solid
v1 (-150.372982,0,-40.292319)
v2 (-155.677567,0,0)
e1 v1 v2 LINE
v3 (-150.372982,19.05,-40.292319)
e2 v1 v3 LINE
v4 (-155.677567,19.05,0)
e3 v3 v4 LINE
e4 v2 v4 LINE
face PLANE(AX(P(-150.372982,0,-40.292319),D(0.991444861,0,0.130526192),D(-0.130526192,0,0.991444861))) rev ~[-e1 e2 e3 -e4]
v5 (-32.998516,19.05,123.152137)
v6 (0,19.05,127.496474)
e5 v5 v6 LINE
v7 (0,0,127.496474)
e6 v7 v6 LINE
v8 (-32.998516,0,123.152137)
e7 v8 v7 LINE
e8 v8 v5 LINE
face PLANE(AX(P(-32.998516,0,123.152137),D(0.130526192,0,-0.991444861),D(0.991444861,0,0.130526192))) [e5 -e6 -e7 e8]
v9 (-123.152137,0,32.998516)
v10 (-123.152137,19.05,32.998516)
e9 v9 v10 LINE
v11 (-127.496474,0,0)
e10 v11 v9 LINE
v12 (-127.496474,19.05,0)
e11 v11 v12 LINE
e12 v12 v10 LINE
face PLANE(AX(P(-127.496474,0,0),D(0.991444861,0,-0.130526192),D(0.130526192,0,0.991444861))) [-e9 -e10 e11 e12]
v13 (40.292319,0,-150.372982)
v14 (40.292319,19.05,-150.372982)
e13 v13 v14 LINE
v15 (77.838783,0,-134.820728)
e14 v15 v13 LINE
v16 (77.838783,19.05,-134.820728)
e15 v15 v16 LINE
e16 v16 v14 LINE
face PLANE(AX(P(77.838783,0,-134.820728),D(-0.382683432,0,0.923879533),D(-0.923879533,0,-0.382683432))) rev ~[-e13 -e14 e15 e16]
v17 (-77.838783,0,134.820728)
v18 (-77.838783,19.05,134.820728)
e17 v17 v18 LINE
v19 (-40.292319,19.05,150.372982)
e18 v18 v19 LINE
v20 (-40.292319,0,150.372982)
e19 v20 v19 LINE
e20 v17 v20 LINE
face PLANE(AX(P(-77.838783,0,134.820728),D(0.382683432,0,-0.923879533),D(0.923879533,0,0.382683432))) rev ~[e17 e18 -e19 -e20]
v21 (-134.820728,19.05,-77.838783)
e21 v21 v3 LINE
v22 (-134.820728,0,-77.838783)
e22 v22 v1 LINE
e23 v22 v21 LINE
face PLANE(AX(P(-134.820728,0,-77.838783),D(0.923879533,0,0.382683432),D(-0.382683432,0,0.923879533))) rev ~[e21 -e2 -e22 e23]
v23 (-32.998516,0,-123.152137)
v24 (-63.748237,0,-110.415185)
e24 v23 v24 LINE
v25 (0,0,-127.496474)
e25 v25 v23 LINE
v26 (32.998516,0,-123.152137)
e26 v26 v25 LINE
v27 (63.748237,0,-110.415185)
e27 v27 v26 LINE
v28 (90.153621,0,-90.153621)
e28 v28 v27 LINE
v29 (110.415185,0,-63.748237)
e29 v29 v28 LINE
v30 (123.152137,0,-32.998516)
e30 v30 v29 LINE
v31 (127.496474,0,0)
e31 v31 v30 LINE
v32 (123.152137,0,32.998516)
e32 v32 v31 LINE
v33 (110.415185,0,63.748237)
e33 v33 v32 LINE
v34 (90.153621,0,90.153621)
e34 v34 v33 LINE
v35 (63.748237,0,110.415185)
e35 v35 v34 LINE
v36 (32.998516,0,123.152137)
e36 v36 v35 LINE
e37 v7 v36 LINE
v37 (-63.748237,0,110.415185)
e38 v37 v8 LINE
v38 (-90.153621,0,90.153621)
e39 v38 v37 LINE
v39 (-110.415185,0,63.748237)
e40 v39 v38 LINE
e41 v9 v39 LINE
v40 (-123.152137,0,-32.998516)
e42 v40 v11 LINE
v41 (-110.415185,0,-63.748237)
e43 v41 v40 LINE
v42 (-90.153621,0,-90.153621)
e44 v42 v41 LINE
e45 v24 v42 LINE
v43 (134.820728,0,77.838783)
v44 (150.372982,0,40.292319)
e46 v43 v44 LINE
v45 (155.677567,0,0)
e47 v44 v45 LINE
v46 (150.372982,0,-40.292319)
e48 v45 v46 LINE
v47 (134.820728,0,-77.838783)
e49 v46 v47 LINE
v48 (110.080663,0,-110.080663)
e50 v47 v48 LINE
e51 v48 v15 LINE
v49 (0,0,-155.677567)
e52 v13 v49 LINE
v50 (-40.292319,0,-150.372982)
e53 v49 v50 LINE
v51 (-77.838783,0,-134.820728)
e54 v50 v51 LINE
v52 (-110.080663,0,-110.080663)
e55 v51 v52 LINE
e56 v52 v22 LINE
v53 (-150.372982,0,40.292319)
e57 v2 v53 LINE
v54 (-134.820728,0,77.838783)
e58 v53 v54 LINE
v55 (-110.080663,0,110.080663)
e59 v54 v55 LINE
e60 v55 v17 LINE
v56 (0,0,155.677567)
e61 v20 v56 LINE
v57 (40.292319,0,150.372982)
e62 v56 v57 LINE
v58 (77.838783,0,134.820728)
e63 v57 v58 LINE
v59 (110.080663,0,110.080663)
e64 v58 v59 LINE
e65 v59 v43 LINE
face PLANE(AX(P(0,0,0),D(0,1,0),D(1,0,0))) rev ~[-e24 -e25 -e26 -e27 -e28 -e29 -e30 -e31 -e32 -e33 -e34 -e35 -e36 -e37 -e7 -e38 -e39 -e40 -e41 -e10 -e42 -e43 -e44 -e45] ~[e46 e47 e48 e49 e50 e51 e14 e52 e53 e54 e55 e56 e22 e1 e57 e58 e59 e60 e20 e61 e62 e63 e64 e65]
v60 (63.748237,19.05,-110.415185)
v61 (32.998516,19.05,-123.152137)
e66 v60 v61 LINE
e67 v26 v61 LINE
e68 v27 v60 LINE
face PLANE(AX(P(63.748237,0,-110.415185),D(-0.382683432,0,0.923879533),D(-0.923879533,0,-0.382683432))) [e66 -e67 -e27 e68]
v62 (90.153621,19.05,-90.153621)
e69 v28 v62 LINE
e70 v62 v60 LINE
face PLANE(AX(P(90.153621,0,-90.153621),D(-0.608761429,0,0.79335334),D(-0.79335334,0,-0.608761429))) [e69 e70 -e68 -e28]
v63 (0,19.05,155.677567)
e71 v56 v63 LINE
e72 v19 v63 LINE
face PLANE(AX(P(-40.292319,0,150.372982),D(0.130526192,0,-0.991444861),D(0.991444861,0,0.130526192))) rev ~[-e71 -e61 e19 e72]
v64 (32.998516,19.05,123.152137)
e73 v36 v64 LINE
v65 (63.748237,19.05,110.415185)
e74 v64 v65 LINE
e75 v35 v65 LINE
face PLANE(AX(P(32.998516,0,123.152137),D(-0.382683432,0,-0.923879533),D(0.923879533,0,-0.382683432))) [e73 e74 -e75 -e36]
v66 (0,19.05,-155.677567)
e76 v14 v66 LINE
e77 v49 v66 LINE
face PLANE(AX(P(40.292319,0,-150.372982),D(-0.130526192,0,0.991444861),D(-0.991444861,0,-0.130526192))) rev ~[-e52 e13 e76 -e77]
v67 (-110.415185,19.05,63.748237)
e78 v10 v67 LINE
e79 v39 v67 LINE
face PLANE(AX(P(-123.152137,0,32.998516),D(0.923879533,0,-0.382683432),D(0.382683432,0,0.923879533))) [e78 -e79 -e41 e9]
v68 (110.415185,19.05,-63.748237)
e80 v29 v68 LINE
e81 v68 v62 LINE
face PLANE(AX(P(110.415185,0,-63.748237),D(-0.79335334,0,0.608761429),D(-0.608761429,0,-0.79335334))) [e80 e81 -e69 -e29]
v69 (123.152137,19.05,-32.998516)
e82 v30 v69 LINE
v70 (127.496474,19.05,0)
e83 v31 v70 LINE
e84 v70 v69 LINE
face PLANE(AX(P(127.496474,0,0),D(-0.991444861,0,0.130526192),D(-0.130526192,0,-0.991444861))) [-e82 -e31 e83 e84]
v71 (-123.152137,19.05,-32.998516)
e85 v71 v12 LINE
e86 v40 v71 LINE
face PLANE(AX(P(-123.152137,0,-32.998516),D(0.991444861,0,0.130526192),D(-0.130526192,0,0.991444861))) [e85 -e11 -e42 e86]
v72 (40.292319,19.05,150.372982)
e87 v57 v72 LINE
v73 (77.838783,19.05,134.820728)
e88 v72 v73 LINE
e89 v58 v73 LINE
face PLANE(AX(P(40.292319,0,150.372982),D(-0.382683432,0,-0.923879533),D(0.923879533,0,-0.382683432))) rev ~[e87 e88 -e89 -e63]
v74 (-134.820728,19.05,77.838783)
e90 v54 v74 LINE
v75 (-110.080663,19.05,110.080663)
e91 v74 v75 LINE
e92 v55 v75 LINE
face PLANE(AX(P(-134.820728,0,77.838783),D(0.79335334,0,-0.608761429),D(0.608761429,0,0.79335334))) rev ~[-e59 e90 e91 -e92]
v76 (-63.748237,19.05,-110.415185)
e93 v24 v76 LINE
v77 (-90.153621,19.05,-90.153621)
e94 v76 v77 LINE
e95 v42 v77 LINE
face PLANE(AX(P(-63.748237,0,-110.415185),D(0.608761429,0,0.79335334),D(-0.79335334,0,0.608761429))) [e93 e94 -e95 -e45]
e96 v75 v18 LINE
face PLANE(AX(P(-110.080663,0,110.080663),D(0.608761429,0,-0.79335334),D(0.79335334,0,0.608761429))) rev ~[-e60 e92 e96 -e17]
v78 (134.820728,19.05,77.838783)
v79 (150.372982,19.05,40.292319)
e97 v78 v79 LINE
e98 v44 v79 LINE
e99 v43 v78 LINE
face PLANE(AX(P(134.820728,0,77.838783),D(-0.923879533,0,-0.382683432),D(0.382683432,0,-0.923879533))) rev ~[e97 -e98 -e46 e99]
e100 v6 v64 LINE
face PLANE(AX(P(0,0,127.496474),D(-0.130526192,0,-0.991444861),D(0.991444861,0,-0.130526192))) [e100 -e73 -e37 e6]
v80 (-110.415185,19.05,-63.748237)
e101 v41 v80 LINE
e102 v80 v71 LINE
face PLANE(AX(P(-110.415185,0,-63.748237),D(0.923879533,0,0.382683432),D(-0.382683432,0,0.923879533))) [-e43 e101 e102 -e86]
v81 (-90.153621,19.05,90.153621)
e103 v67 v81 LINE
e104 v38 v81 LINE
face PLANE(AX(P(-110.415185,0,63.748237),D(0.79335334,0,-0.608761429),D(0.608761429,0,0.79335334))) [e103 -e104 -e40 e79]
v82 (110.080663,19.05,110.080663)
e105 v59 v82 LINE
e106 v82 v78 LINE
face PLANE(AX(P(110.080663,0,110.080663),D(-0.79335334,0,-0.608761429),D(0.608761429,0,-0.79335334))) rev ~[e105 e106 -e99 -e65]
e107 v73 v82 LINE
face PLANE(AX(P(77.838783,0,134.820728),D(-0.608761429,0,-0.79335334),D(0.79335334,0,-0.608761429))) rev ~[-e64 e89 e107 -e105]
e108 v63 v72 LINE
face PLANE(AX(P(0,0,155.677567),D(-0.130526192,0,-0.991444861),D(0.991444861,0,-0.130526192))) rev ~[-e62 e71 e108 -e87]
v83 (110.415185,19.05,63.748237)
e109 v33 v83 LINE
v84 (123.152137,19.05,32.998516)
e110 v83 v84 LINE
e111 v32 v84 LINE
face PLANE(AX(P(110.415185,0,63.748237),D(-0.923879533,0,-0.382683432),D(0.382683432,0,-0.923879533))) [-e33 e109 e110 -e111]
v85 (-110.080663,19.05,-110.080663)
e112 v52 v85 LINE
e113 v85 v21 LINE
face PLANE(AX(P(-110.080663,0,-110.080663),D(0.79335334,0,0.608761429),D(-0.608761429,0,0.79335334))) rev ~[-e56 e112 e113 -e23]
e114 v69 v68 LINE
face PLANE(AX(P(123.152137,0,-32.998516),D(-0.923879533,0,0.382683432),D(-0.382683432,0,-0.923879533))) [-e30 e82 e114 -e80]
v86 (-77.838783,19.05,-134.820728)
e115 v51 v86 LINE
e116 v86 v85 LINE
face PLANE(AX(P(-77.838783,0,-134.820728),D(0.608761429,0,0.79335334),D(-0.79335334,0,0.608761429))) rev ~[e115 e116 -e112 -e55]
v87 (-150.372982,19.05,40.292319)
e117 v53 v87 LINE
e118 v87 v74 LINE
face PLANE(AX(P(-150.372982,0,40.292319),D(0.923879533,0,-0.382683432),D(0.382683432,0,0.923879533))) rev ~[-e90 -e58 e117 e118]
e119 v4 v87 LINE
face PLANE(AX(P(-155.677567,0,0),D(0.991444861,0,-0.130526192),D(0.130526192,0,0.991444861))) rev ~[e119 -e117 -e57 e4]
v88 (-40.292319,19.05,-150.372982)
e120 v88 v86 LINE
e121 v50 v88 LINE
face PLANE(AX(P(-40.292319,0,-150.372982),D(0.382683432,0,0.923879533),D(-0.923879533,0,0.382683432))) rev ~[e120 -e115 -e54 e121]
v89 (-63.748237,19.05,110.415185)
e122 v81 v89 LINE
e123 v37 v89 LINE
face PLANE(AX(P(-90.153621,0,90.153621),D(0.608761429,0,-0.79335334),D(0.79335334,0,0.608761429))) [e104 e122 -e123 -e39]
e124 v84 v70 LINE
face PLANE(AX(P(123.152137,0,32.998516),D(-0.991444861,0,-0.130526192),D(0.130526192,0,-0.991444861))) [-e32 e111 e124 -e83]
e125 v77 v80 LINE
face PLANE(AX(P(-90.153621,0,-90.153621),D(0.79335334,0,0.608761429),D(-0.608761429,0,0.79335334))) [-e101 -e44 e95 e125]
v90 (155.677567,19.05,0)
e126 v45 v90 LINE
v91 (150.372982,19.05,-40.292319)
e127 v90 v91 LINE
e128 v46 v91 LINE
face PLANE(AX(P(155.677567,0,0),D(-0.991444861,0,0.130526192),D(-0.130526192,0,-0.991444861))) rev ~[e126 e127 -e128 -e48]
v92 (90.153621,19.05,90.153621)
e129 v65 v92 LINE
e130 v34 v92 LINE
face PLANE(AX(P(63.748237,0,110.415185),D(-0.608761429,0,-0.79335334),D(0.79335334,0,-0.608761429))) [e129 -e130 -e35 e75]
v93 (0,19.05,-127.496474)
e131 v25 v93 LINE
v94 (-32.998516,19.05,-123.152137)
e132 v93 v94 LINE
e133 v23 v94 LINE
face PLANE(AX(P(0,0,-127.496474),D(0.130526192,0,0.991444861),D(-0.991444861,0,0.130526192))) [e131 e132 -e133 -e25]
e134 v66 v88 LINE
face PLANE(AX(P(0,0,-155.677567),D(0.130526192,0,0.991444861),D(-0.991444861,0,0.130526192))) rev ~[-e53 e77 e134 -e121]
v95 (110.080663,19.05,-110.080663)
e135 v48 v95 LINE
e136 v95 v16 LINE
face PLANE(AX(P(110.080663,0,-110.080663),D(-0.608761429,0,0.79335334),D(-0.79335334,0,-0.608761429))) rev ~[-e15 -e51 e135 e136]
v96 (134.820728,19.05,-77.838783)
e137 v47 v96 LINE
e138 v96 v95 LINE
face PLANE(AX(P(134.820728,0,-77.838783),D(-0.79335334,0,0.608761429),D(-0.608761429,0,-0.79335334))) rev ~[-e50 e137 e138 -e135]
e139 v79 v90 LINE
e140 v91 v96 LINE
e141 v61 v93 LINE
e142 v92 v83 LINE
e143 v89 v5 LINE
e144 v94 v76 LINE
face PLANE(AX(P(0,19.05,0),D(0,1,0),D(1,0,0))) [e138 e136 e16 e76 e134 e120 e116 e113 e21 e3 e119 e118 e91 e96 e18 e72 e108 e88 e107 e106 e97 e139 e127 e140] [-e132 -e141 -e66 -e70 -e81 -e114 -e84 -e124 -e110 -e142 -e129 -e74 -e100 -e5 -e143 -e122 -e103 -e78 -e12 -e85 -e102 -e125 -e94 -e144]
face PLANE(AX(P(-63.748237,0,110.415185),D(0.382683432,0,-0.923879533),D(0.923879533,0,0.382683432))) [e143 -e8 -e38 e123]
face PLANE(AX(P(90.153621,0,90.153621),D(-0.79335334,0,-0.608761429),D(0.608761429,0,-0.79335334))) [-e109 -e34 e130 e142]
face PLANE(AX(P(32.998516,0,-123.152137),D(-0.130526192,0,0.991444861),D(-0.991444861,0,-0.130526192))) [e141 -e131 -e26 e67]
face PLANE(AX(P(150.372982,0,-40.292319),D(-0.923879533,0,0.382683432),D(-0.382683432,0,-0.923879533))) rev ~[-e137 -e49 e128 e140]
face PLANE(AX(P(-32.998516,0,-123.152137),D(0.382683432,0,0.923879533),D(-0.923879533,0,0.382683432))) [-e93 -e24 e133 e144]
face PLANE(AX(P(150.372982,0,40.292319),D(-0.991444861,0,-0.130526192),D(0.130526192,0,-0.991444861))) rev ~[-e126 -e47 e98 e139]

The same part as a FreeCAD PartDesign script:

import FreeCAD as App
import Part
import Sketcher
Q = App.Units.Quantity


def add_polygon(sketch, points):
    """Adds a closed chain of lines whose ends are joined by coincident constraints."""
    first, n = sketch.GeometryCount, len(points)
    for a, b in zip(points, points[1:] + points[:1]):
        sketch.addGeometry(Part.LineSegment(App.Vector(*a, 0), App.Vector(*b, 0)), False)
    for i in range(n):
        sketch.addConstraint(Sketcher.Constraint("Coincident", first + i, 2, first + (i + 1) % n, 1))

doc = App.newDocument("Part")
body = doc.addObject("PartDesign::Body", "Body")

sketch1 = body.newObject("Sketcher::SketchObject", "Sketch")
sketch1.AttachmentSupport = (doc.getObject("XZ_Plane"), [""])
sketch1.MapMode = "FlatFace"
add_polygon(sketch1, [(-156, 0), (-150, 40), (-135, 78), (-110, 110), (-78, 135), (-40, 150), (0, 156), (40, 150), (78, 135), (110, 110), (135, 78), (150, 40), (156, 0), (150, -40), (135, -78), (110, -110), (78, -135), (40, -150), (0, -156), (-40, -150), (-78, -135), (-110, -110), (-135, -78), (-150, -40)])
add_polygon(sketch1, [(-123, 33), (-127, 0), (-123, -33), (-110, -64), (-90, -90), (-64, -110), (-33, -123), (0, -127), (33, -123), (64, -110), (90, -90), (110, -64), (123, -33), (127, 0), (123, 33), (110, 64), (90, 90), (64, 110), (33, 123), (0, 127), (-33, 123), (-64, 110), (-90, 90), (-110, 64)])
sketch1.addConstraint([
    Sketcher.Constraint("Symmetric", 0, 2, 12, 2, -1, 1),
    Sketcher.Constraint("Symmetric", 1, 2, 13, 2, -1, 1),
    Sketcher.Constraint("Symmetric", 2, 2, 14, 2, -1, 1),
    Sketcher.Constraint("Symmetric", 3, 2, 15, 2, -1, 1),
    Sketcher.Constraint("Symmetric", 4, 2, 16, 2, -1, 1),
    Sketcher.Constraint("Symmetric", 5, 2, 17, 2, -1, 1),
    Sketcher.Constraint("Symmetric", 6, 2, 18, 2, -1, 1),
    Sketcher.Constraint("Symmetric", 7, 2, 19, 2, -1, 1),
    Sketcher.Constraint("Symmetric", 8, 2, 20, 2, -1, 1),
    Sketcher.Constraint("Symmetric", 9, 2, 21, 2, -1, 1),
    Sketcher.Constraint("Symmetric", 10, 2, 22, 2, -1, 1),
    Sketcher.Constraint("Symmetric", 11, 2, 23, 2, -1, 1),
    Sketcher.Constraint("Symmetric", 24, 2, 36, 2, -1, 1),
    Sketcher.Constraint("Symmetric", 25, 2, 37, 2, -1, 1),
    Sketcher.Constraint("Symmetric", 26, 2, 38, 2, -1, 1),
    Sketcher.Constraint("Symmetric", 27, 2, 39, 2, -1, 1),
    Sketcher.Constraint("Symmetric", 28, 2, 40, 2, -1, 1),
    Sketcher.Constraint("Symmetric", 29, 2, 41, 2, -1, 1),
    Sketcher.Constraint("Symmetric", 30, 2, 42, 2, -1, 1),
    Sketcher.Constraint("Symmetric", 31, 2, 43, 2, -1, 1),
    Sketcher.Constraint("Symmetric", 32, 2, 44, 2, -1, 1),
    Sketcher.Constraint("Symmetric", 33, 2, 45, 2, -1, 1),
    Sketcher.Constraint("Symmetric", 34, 2, 46, 2, -1, 1),
    Sketcher.Constraint("Symmetric", 35, 2, 47, 2, -1, 1),
    Sketcher.Constraint("Symmetric", 4, 2, 6, 2, -2),
    Sketcher.Constraint("Symmetric", 3, 2, 7, 2, -2),
    Sketcher.Constraint("Symmetric", 2, 2, 8, 2, -2),
    Sketcher.Constraint("Symmetric", 1, 2, 9, 2, -2),
    Sketcher.Constraint("Symmetric", 0, 2, 10, 2, -2),
    Sketcher.Constraint("Symmetric", 29, 2, 31, 2, -2),
    Sketcher.Constraint("Symmetric", 28, 2, 32, 2, -2),
    Sketcher.Constraint("Symmetric", 27, 2, 33, 2, -2),
    Sketcher.Constraint("Symmetric", 26, 2, 34, 2, -2),
    Sketcher.Constraint("Symmetric", 25, 2, 35, 2, -2),
    Sketcher.Constraint("PointOnObject", 5, 2, -2),
    Sketcher.Constraint("PointOnObject", 11, 2, -1),
    Sketcher.Constraint("PointOnObject", 24, 2, -1),
    Sketcher.Constraint("PointOnObject", 30, 2, -2),
    Sketcher.Constraint("Perpendicular", 0, 6),
    Sketcher.Constraint("Perpendicular", 1, 7),
    Sketcher.Constraint("Perpendicular", 2, 8),
    Sketcher.Constraint("Perpendicular", 18, 24),
    Sketcher.Constraint("Parallel", 22, 26),
    Sketcher.Constraint("Parallel", 21, 27),
    Sketcher.Constraint("Parallel", 20, 28),
    Sketcher.Constraint("Parallel", 19, 29),
    Sketcher.Constraint("Perpendicular", 24, 30),
    Sketcher.Constraint("Equal", 0, 1),
    Sketcher.Constraint("Equal", 1, 2),
    Sketcher.Constraint("Equal", 2, 3),
    Sketcher.Constraint("Equal", 3, 4),
    Sketcher.Constraint("Equal", 4, 5),
    Sketcher.Constraint("Equal", 25, 26),
    Sketcher.Constraint("Equal", 26, 27),
    Sketcher.Constraint("Equal", 27, 28),
    Sketcher.Constraint("Equal", 28, 29),
    Sketcher.Constraint("Equal", 29, 30),
    Sketcher.Constraint("Distance", 0, Q("1.6 in")),
    Sketcher.Constraint("Angle", 0, Q("82.5 deg")),
    Sketcher.Constraint("Angle", 1, Q("67.5 deg")),
    Sketcher.Constraint("Angle", 2, Q("52.5 deg")),
    Sketcher.Constraint("Distance", 24, 33.283258),
])
pad1 = body.newObject("PartDesign::Pad", "Pad")
pad1.Profile = sketch1
pad1.Length = Q("0.75 in")
pad1.Reversed = True

doc.recompute()
